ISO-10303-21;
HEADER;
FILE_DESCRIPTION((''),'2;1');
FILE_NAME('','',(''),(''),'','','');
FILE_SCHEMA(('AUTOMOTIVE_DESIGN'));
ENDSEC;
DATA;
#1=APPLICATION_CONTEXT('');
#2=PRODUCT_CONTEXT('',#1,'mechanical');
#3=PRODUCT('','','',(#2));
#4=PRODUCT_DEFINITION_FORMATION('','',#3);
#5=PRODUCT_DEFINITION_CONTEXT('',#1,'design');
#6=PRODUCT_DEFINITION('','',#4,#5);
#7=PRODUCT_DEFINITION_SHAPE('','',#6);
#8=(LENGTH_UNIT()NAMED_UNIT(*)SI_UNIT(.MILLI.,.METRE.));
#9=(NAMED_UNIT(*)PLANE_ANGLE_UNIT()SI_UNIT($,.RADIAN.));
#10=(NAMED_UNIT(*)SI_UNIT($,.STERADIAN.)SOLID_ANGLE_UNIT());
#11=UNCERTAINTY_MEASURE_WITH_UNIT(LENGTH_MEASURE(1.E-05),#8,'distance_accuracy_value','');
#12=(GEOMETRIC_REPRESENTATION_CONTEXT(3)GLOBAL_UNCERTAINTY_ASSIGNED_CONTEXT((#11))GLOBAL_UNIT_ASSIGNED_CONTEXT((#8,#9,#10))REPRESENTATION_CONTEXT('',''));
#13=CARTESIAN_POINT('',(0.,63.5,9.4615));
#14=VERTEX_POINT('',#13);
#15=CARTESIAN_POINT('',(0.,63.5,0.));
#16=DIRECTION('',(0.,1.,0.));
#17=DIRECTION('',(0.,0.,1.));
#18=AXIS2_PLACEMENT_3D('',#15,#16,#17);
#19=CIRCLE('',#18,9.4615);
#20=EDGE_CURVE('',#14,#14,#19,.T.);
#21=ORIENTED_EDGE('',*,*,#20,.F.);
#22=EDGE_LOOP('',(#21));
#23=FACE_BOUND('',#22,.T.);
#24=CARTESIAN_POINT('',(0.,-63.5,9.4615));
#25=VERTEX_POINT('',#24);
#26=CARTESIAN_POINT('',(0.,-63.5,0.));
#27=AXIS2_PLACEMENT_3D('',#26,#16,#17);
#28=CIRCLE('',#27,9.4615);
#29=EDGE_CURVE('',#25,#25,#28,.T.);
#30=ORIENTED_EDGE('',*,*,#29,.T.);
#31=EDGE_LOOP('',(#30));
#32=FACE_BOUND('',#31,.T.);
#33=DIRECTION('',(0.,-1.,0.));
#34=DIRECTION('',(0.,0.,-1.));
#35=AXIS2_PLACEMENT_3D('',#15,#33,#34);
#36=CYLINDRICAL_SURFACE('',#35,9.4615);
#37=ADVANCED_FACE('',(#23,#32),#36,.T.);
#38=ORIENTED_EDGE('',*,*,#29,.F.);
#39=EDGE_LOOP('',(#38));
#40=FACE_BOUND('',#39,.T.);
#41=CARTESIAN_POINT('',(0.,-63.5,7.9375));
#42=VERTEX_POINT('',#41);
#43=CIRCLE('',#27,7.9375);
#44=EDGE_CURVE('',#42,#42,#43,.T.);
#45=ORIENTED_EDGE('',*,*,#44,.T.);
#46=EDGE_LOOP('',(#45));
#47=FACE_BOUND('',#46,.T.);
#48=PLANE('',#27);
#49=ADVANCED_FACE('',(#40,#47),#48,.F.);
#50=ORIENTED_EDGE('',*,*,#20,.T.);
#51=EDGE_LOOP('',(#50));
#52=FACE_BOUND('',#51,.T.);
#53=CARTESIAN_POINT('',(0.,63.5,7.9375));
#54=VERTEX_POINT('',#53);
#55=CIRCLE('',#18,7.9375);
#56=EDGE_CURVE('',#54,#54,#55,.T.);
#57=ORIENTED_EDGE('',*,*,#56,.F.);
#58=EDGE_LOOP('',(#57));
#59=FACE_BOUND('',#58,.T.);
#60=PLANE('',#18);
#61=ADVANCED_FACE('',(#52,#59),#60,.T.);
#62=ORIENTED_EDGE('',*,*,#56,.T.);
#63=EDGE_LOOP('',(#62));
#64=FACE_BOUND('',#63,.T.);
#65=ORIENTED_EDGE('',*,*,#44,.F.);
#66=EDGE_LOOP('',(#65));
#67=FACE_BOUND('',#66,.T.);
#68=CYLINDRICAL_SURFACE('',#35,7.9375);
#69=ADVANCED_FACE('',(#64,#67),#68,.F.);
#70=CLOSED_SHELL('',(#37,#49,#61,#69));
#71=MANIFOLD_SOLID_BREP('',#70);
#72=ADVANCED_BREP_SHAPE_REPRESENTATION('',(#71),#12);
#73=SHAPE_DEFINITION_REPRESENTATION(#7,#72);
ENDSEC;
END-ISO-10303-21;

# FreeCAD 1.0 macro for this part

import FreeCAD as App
import Part
import Sketcher
from FreeCAD import Vector
Q = App.Units.Quantity

doc = App.newDocument("Part")
body = doc.addObject("PartDesign::Body", "Body")

# Sketch on XZ plane
sketch1 = body.newObject("Sketcher::SketchObject", "Sketch")
sketch1.AttachmentSupport = (doc.getObject("XZ_Plane"), [""])
sketch1.MapMode = "FlatFace"
sketch1.addGeometry(Part.Circle(Vector(0, 0, 0), Vector(0, 0, 1), 9), False)
sketch1.addGeometry(Part.Circle(Vector(0, 0, 0), Vector(0, 0, 1), 8), False)
sketch1.addConstraint(Sketcher.Constraint("Coincident", 0, 3, -1, 1))
sketch1.addConstraint(Sketcher.Constraint("Coincident", 1, 3, -1, 1))
sketch1.addConstraint(Sketcher.Constraint("Diameter", 0, Q("0.745 in")))
sketch1.addConstraint(Sketcher.Constraint("Diameter", 1, Q("0.625 in")))
pad1 = body.newObject("PartDesign::Pad", "Pad")
pad1.Profile = sketch1
pad1.Length = Q("5 in")
pad1.Midplane = True

doc.recompute()
